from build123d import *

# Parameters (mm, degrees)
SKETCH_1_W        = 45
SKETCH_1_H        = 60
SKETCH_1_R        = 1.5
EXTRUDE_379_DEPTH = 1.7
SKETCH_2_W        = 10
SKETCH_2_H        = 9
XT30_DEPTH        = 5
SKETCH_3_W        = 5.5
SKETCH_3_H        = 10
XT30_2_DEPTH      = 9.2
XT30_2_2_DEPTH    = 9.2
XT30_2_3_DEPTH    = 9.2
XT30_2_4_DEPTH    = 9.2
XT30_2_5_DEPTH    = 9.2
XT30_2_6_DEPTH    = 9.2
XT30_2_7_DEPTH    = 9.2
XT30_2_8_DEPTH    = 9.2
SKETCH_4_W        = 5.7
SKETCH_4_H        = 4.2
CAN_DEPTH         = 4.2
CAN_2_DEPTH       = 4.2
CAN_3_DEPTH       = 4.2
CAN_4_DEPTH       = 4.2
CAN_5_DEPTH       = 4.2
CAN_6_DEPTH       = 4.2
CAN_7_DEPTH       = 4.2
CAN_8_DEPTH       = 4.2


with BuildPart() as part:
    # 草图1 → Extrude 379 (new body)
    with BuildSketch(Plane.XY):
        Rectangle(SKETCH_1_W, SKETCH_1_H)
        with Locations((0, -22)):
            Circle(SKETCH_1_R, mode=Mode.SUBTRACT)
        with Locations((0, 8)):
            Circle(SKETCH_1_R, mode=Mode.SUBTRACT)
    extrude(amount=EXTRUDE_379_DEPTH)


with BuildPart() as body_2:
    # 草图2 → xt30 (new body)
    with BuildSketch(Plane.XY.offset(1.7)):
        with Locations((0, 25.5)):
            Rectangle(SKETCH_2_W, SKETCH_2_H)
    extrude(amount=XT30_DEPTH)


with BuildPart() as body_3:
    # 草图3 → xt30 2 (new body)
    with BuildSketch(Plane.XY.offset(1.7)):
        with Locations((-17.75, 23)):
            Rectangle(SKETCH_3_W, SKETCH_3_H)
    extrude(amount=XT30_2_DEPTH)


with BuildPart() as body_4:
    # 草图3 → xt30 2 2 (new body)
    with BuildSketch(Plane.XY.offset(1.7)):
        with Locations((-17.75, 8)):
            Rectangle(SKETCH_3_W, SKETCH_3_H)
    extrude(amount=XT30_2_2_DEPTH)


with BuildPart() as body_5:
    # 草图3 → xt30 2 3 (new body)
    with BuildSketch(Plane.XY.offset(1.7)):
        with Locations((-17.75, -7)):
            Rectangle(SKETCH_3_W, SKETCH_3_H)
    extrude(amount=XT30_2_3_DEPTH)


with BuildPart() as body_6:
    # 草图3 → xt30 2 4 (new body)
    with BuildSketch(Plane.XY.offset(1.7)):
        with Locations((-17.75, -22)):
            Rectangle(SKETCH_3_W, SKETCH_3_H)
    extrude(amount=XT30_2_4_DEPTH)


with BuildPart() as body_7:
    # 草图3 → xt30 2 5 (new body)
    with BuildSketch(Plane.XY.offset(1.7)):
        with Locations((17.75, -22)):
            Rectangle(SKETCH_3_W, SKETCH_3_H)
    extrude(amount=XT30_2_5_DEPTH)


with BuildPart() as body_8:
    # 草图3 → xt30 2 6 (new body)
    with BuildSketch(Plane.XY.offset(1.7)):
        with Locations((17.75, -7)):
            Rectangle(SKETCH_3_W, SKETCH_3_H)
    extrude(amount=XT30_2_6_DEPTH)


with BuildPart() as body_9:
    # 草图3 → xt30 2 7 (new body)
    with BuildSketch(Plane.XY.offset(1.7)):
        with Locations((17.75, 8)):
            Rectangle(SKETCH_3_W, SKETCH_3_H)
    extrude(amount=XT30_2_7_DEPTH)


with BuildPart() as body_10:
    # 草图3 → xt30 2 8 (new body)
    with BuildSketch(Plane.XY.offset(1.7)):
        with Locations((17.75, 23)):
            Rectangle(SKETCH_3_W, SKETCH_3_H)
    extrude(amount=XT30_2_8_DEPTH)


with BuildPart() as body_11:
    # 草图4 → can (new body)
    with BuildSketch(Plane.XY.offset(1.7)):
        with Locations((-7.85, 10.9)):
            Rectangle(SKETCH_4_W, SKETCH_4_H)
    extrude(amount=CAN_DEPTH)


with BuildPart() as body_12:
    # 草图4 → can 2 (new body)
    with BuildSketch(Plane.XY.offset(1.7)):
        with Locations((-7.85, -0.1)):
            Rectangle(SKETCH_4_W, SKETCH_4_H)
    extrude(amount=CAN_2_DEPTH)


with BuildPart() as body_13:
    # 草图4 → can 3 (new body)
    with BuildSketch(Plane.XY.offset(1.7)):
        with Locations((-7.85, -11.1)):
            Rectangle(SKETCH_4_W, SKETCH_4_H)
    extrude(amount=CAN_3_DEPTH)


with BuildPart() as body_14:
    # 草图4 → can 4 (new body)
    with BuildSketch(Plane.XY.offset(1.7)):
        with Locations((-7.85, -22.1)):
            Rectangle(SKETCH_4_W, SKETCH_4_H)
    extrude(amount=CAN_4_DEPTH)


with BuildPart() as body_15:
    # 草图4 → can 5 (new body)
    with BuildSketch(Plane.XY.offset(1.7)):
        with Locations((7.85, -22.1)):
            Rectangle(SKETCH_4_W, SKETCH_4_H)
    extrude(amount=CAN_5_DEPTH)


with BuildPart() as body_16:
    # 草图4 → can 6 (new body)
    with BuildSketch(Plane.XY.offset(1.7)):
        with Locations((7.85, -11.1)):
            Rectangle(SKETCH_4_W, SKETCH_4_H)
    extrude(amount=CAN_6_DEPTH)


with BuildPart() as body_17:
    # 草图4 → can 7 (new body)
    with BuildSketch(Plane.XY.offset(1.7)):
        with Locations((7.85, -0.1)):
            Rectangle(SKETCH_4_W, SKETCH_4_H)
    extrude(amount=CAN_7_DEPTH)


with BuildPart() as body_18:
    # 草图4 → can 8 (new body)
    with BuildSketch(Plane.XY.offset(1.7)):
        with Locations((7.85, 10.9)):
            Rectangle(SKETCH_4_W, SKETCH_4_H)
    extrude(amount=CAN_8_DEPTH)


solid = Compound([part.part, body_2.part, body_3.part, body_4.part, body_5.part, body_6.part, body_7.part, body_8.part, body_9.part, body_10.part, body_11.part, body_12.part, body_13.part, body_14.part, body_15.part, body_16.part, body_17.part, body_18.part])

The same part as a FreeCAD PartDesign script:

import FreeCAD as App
import Part
import Sketcher

V = App.Vector
Q = App.Units.Quantity


def add_polygon(sketch, points):
    """Adds a closed chain of lines whose ends are joined by coincident constraints."""
    first, n = sketch.GeometryCount, len(points)
    for a, b in zip(points, points[1:] + points[:1]):
        sketch.addGeometry(Part.LineSegment(App.Vector(*a, 0), App.Vector(*b, 0)), False)
    for i in range(n):
        sketch.addConstraint(Sketcher.Constraint("Coincident", first + i, 2, first + (i + 1) % n, 1))

doc = App.newDocument("Part")
body = doc.addObject("PartDesign::Body", "Body")

sketch1 = doc.addObject("Sketcher::SketchObject", "Sketch")
body.addObject(sketch1)
sketch1.AttachmentSupport = (doc.XY_Plane, [""])
sketch1.MapMode = "FlatFace"
add_polygon(sketch1, [(-22.5, 30), (-22.5, -30), (22.5, -30), (22.5, 30)])
sketch1.addGeometry(Part.Circle(V(0, -22, 0), V(0, 0, 1), 1.5), False)
sketch1.addGeometry(Part.Circle(V(0, 8, 0), V(0, 0, 1), 1.5), False)
sketch1.addConstraint([
    Sketcher.Constraint("Vertical", 0),
    Sketcher.Constraint("Horizontal", 1),
    Sketcher.Constraint("Vertical", 2),
    Sketcher.Constraint("Horizontal", 3),
    Sketcher.Constraint("Equal", 4, 5),
    Sketcher.Constraint("Symmetric", 0, 2, 2, 2, -1, 1),
    Sketcher.Constraint("PointOnObject", 4, 3, -2),
    Sketcher.Constraint("PointOnObject", 5, 3, -2),
    Sketcher.Constraint("Diameter", 4, Q("3 mm")),
    Sketcher.Constraint("DistanceX", 1, 1, 1, 2, Q("45 mm")),
    Sketcher.Constraint("DistanceY", 0, 2, 0, 1, Q("60 mm")),
    Sketcher.Constraint("DistanceY", 4, 3, -1, 1, Q("22 mm")),
    Sketcher.Constraint("DistanceY", -1, 1, 5, 3, Q("8 mm")),
])
pad1 = doc.addObject("PartDesign::Pad", "Pad")
body.addObject(pad1)
pad1.Profile = sketch1
pad1.Length = 1.7
body2 = doc.addObject("PartDesign::Body", "Body001")

sketch2 = doc.addObject("Sketcher::SketchObject", "Sketch001")
body2.addObject(sketch2)
sketch2.AttachmentSupport = (doc.getObject("XY_Plane001"), [""])
sketch2.MapMode = "FlatFace"
sketch2.AttachmentOffset = App.Placement(V(0, 0, 1.7), App.Rotation())
add_polygon(sketch2, [(-5, 30), (-5, 21), (5, 21), (5, 30)])
sketch2.addConstraint([
    Sketcher.Constraint("Vertical", 0),
    Sketcher.Constraint("Horizontal", 1),
    Sketcher.Constraint("Vertical", 2),
    Sketcher.Constraint("Horizontal", 3),
    Sketcher.Constraint("DistanceX", 1, 1, 1, 2, Q("10 mm")),
    Sketcher.Constraint("DistanceY", 0, 2, 0, 1, Q("9 mm")),
    Sketcher.Constraint("DistanceX", 0, 2, -1, 1, Q("5 mm")),
    Sketcher.Constraint("DistanceY", -1, 1, 0, 2, Q("21 mm")),
])
pad2 = doc.addObject("PartDesign::Pad", "Pad001")
body2.addObject(pad2)
pad2.Profile = sketch2
pad2.Length = 5
body3 = doc.addObject("PartDesign::Body", "Body002")

sketch3 = doc.addObject("Sketcher::SketchObject", "Sketch002")
body3.addObject(sketch3)
sketch3.AttachmentSupport = (doc.getObject("XY_Plane002"), [""])
sketch3.MapMode = "FlatFace"
sketch3.AttachmentOffset = App.Placement(V(0, 0, 1.7), App.Rotation())
add_polygon(sketch3, [(-20.5, 28), (-20.5, 18), (-15, 18), (-15, 28)])
sketch3.addConstraint([
    Sketcher.Constraint("Vertical", 0),
    Sketcher.Constraint("Horizontal", 1),
    Sketcher.Constraint("Vertical", 2),
    Sketcher.Constraint("Horizontal", 3),
    Sketcher.Constraint("DistanceY", 0, 2, 0, 1, Q("10 mm")),
    Sketcher.Constraint("DistanceX", 1, 1, 1, 2, Q("5.5 mm")),
    Sketcher.Constraint("DistanceY", -1, 1, 0, 2, Q("18 mm")),
    Sketcher.Constraint("DistanceX", 1, 2, -1, 1, Q("15 mm")),
])
pad3 = doc.addObject("PartDesign::Pad", "Pad002")
body3.addObject(pad3)
pad3.Profile = sketch3
pad3.Length = 9.2
body4 = doc.addObject("PartDesign::Body", "Body003")

sketch4 = doc.addObject("Sketcher::SketchObject", "Sketch003")
body4.addObject(sketch4)
sketch4.AttachmentSupport = (doc.getObject("XY_Plane003"), [""])
sketch4.MapMode = "FlatFace"
sketch4.AttachmentOffset = App.Placement(V(0, 0, 1.7), App.Rotation())
add_polygon(sketch4, [(-20.5, 13), (-20.5, 3), (-15, 3), (-15, 13)])
sketch4.addConstraint([
    Sketcher.Constraint("Vertical", 0),
    Sketcher.Constraint("Horizontal", 1),
    Sketcher.Constraint("Vertical", 2),
    Sketcher.Constraint("Horizontal", 3),
    Sketcher.Constraint("DistanceY", 0, 2, 0, 1, Q("10 mm")),
    Sketcher.Constraint("DistanceX", 1, 1, 1, 2, Q("5.5 mm")),
    Sketcher.Constraint("DistanceY", -1, 1, 0, 2, Q("3 mm")),
    Sketcher.Constraint("DistanceX", 1, 2, -1, 1, Q("15 mm")),
])
pad4 = doc.addObject("PartDesign::Pad", "Pad003")
body4.addObject(pad4)
pad4.Profile = sketch4
pad4.Length = 9.2
body5 = doc.addObject("PartDesign::Body", "Body004")

sketch5 = doc.addObject("Sketcher::SketchObject", "Sketch004")
body5.addObject(sketch5)
sketch5.AttachmentSupport = (doc.getObject("XY_Plane004"), [""])
sketch5.MapMode = "FlatFace"
sketch5.AttachmentOffset = App.Placement(V(0, 0, 1.7), App.Rotation())
add_polygon(sketch5, [(-20.5, -2), (-20.5, -12), (-15, -12), (-15, -2)])
sketch5.addConstraint([
    Sketcher.Constraint("Vertical", 0),
    Sketcher.Constraint("Horizontal", 1),
    Sketcher.Constraint("Vertical", 2),
    Sketcher.Constraint("Horizontal", 3),
    Sketcher.Constraint("DistanceY", 0, 2, 0, 1, Q("10 mm")),
    Sketcher.Constraint("DistanceX", 1, 1, 1, 2, Q("5.5 mm")),
    Sketcher.Constraint("DistanceY", 0, 2, -1, 1, Q("12 mm")),
    Sketcher.Constraint("DistanceX", 1, 2, -1, 1, Q("15 mm")),
])
pad5 = doc.addObject("PartDesign::Pad", "Pad004")
body5.addObject(pad5)
pad5.Profile = sketch5
pad5.Length = 9.2
body6 = doc.addObject("PartDesign::Body", "Body005")

sketch6 = doc.addObject("Sketcher::SketchObject", "Sketch005")
body6.addObject(sketch6)
sketch6.AttachmentSupport = (doc.getObject("XY_Plane005"), [""])
sketch6.MapMode = "FlatFace"
sketch6.AttachmentOffset = App.Placement(V(0, 0, 1.7), App.Rotation())
add_polygon(sketch6, [(-20.5, -17), (-20.5, -27), (-15, -27), (-15, -17)])
sketch6.addConstraint([
    Sketcher.Constraint("Vertical", 0),
    Sketcher.Constraint("Horizontal", 1),
    Sketcher.Constraint("Vertical", 2),
    Sketcher.Constraint("Horizontal", 3),
    Sketcher.Constraint("DistanceY", 0, 2, 0, 1, Q("10 mm")),
    Sketcher.Constraint("DistanceX", 1, 1, 1, 2, Q("5.5 mm")),
    Sketcher.Constraint("DistanceY", 0, 2, -1, 1, Q("27 mm")),
    Sketcher.Constraint("DistanceX", 1, 2, -1, 1, Q("15 mm")),
])
pad6 = doc.addObject("PartDesign::Pad", "Pad005")
body6.addObject(pad6)
pad6.Profile = sketch6
pad6.Length = 9.2
body7 = doc.addObject("PartDesign::Body", "Body006")

sketch7 = doc.addObject("Sketcher::SketchObject", "Sketch006")
body7.addObject(sketch7)
sketch7.AttachmentSupport = (doc.getObject("XY_Plane006"), [""])
sketch7.MapMode = "FlatFace"
sketch7.AttachmentOffset = App.Placement(V(0, 0, 1.7), App.Rotation())
add_polygon(sketch7, [(15, -17), (15, -27), (20.5, -27), (20.5, -17)])
sketch7.addConstraint([
    Sketcher.Constraint("Vertical", 0),
    Sketcher.Constraint("Horizontal", 1),
    Sketcher.Constraint("Vertical", 2),
    Sketcher.Constraint("Horizontal", 3),
    Sketcher.Constraint("DistanceY", 0, 2, 0, 1, Q("10 mm")),
    Sketcher.Constraint("DistanceX", 1, 1, 1, 2, Q("5.5 mm")),
    Sketcher.Constraint("DistanceX", -1, 1, 0, 2, Q("15 mm")),
    Sketcher.Constraint("DistanceY", 0, 2, -1, 1, Q("27 mm")),
])
pad7 = doc.addObject("PartDesign::Pad", "Pad006")
body7.addObject(pad7)
pad7.Profile = sketch7
pad7.Length = 9.2
body8 = doc.addObject("PartDesign::Body", "Body007")

sketch8 = doc.addObject("Sketcher::SketchObject", "Sketch007")
body8.addObject(sketch8)
sketch8.AttachmentSupport = (doc.getObject("XY_Plane007"), [""])
sketch8.MapMode = "FlatFace"
sketch8.AttachmentOffset = App.Placement(V(0, 0, 1.7), App.Rotation())
add_polygon(sketch8, [(15, -2), (15, -12), (20.5, -12), (20.5, -2)])
sketch8.addConstraint([
    Sketcher.Constraint("Vertical", 0),
    Sketcher.Constraint("Horizontal", 1),
    Sketcher.Constraint("Vertical", 2),
    Sketcher.Constraint("Horizontal", 3),
    Sketcher.Constraint("DistanceY", 0, 2, 0, 1, Q("10 mm")),
    Sketcher.Constraint("DistanceX", 1, 1, 1, 2, Q("5.5 mm")),
    Sketcher.Constraint("DistanceX", -1, 1, 0, 2, Q("15 mm")),
    Sketcher.Constraint("DistanceY", 0, 2, -1, 1, Q("12 mm")),
])
pad8 = doc.addObject("PartDesign::Pad", "Pad007")
body8.addObject(pad8)
pad8.Profile = sketch8
pad8.Length = 9.2
body9 = doc.addObject("PartDesign::Body", "Body008")

sketch9 = doc.addObject("Sketcher::SketchObject", "Sketch008")
body9.addObject(sketch9)
sketch9.AttachmentSupport = (doc.getObject("XY_Plane008"), [""])
sketch9.MapMode = "FlatFace"
sketch9.AttachmentOffset = App.Placement(V(0, 0, 1.7), App.Rotation())
add_polygon(sketch9, [(15, 13), (15, 3), (20.5, 3), (20.5, 13)])
sketch9.addConstraint([
    Sketcher.Constraint("Vertical", 0),
    Sketcher.Constraint("Horizontal", 1),
    Sketcher.Constraint("Vertical", 2),
    Sketcher.Constraint("Horizontal", 3),
    Sketcher.Constraint("DistanceY", 0, 2, 0, 1, Q("10 mm")),
    Sketcher.Constraint("DistanceX", 1, 1, 1, 2, Q("5.5 mm")),
    Sketcher.Constraint("DistanceX", -1, 1, 0, 2, Q("15 mm")),
    Sketcher.Constraint("DistanceY", -1, 1, 0, 2, Q("3 mm")),
])
pad9 = doc.addObject("PartDesign::Pad", "Pad008")
body9.addObject(pad9)
pad9.Profile = sketch9
pad9.Length = 9.2
body10 = doc.addObject("PartDesign::Body", "Body009")

sketch10 = doc.addObject("Sketcher::SketchObject", "Sketch009")
body10.addObject(sketch10)
sketch10.AttachmentSupport = (doc.getObject("XY_Plane009"), [""])
sketch10.MapMode = "FlatFace"
sketch10.AttachmentOffset = App.Placement(V(0, 0, 1.7), App.Rotation())
add_polygon(sketch10, [(15, 28), (15, 18), (20.5, 18), (20.5, 28)])
sketch10.addConstraint([
    Sketcher.Constraint("Vertical", 0),
    Sketcher.Constraint("Horizontal", 1),
    Sketcher.Constraint("Vertical", 2),
    Sketcher.Constraint("Horizontal", 3),
    Sketcher.Constraint("DistanceY", 0, 2, 0, 1, Q("10 mm")),
    Sketcher.Constraint("DistanceX", 1, 1, 1, 2, Q("5.5 mm")),
    Sketcher.Constraint("DistanceX", -1, 1, 0, 2, Q("15 mm")),
    Sketcher.Constraint("DistanceY", -1, 1, 0, 2, Q("18 mm")),
])
pad10 = doc.addObject("PartDesign::Pad", "Pad009")
body10.addObject(pad10)
pad10.Profile = sketch10
pad10.Length = 9.2
body11 = doc.addObject("PartDesign::Body", "Body010")

sketch11 = doc.addObject("Sketcher::SketchObject", "Sketch010")
body11.addObject(sketch11)
sketch11.AttachmentSupport = (doc.getObject("XY_Plane010"), [""])
sketch11.MapMode = "FlatFace"
sketch11.AttachmentOffset = App.Placement(V(0, 0, 1.7), App.Rotation())
add_polygon(sketch11, [(-10.7, 13), (-10.7, 8.8), (-5, 8.8), (-5, 13)])
sketch11.addConstraint([
    Sketcher.Constraint("Vertical", 0),
    Sketcher.Constraint("Horizontal", 1),
    Sketcher.Constraint("Vertical", 2),
    Sketcher.Constraint("Horizontal", 3),
    Sketcher.Constraint("DistanceX", 1, 1, 1, 2, Q("5.7 mm")),
    Sketcher.Constraint("DistanceY", 0, 2, 0, 1, Q("4.2 mm")),
    Sketcher.Constraint("DistanceX", 1, 2, -1, 1, Q("5 mm")),
    Sketcher.Constraint("DistanceY", -1, 1, 2, 2, Q("13 mm")),
])
pad11 = doc.addObject("PartDesign::Pad", "Pad010")
body11.addObject(pad11)
pad11.Profile = sketch11
pad11.Length = 4.2
body12 = doc.addObject("PartDesign::Body", "Body011")

sketch12 = doc.addObject("Sketcher::SketchObject", "Sketch011")
body12.addObject(sketch12)
sketch12.AttachmentSupport = (doc.getObject("XY_Plane011"), [""])
sketch12.MapMode = "FlatFace"
sketch12.AttachmentOffset = App.Placement(V(0, 0, 1.7), App.Rotation())
add_polygon(sketch12, [(-10.7, 2), (-10.7, -2.2), (-5, -2.2), (-5, 2)])
sketch12.addConstraint([
    Sketcher.Constraint("Vertical", 0),
    Sketcher.Constraint("Horizontal", 1),
    Sketcher.Constraint("Vertical", 2),
    Sketcher.Constraint("Horizontal", 3),
    Sketcher.Constraint("DistanceX", 1, 1, 1, 2, Q("5.7 mm")),
    Sketcher.Constraint("DistanceY", 0, 2, 0, 1, Q("4.2 mm")),
    Sketcher.Constraint("DistanceX", 1, 2, -1, 1, Q("5 mm")),
    Sketcher.Constraint("DistanceY", -1, 1, 2, 2, Q("2 mm")),
])
pad12 = doc.addObject("PartDesign::Pad", "Pad011")
body12.addObject(pad12)
pad12.Profile = sketch12
pad12.Length = 4.2
body13 = doc.addObject("PartDesign::Body", "Body012")

sketch13 = doc.addObject("Sketcher::SketchObject", "Sketch012")
body13.addObject(sketch13)
sketch13.AttachmentSupport = (doc.getObject("XY_Plane012"), [""])
sketch13.MapMode = "FlatFace"
sketch13.AttachmentOffset = App.Placement(V(0, 0, 1.7), App.Rotation())
add_polygon(sketch13, [(-10.7, -9), (-10.7, -13.2), (-5, -13.2), (-5, -9)])
sketch13.addConstraint([
    Sketcher.Constraint("Vertical", 0),
    Sketcher.Constraint("Horizontal", 1),
    Sketcher.Constraint("Vertical", 2),
    Sketcher.Constraint("Horizontal", 3),
    Sketcher.Constraint("DistanceX", 1, 1, 1, 2, Q("5.7 mm")),
    Sketcher.Constraint("DistanceY", 0, 2, 0, 1, Q("4.2 mm")),
    Sketcher.Constraint("DistanceX", 1, 2, -1, 1, Q("5 mm")),
    Sketcher.Constraint("DistanceY", 2, 2, -1, 1, Q("9 mm")),
])
pad13 = doc.addObject("PartDesign::Pad", "Pad012")
body13.addObject(pad13)
pad13.Profile = sketch13
pad13.Length = 4.2
body14 = doc.addObject("PartDesign::Body", "Body013")

sketch14 = doc.addObject("Sketcher::SketchObject", "Sketch013")
body14.addObject(sketch14)
sketch14.AttachmentSupport = (doc.getObject("XY_Plane013"), [""])
sketch14.MapMode = "FlatFace"
sketch14.AttachmentOffset = App.Placement(V(0, 0, 1.7), App.Rotation())
add_polygon(sketch14, [(-10.7, -20), (-10.7, -24.2), (-5, -24.2), (-5, -20)])
sketch14.addConstraint([
    Sketcher.Constraint("Vertical", 0),
    Sketcher.Constraint("Horizontal", 1),
    Sketcher.Constraint("Vertical", 2),
    Sketcher.Constraint("Horizontal", 3),
    Sketcher.Constraint("DistanceX", 1, 1, 1, 2, Q("5.7 mm")),
    Sketcher.Constraint("DistanceY", 0, 2, 0, 1, Q("4.2 mm")),
    Sketcher.Constraint("DistanceX", 1, 2, -1, 1, Q("5 mm")),
    Sketcher.Constraint("DistanceY", 2, 2, -1, 1, Q("20 mm")),
])
pad14 = doc.addObject("PartDesign::Pad", "Pad013")
body14.addObject(pad14)
pad14.Profile = sketch14
pad14.Length = 4.2
body15 = doc.addObject("PartDesign::Body", "Body014")

sketch15 = doc.addObject("Sketcher::SketchObject", "Sketch014")
body15.addObject(sketch15)
sketch15.AttachmentSupport = (doc.getObject("XY_Plane014"), [""])
sketch15.MapMode = "FlatFace"
sketch15.AttachmentOffset = App.Placement(V(0, 0, 1.7), App.Rotation())
add_polygon(sketch15, [(5, -20), (5, -24.2), (10.7, -24.2), (10.7, -20)])
sketch15.addConstraint([
    Sketcher.Constraint("Vertical", 0),
    Sketcher.Constraint("Horizontal", 1),
    Sketcher.Constraint("Vertical", 2),
    Sketcher.Constraint("Horizontal", 3),
    Sketcher.Constraint("DistanceX", 1, 1, 1, 2, Q("5.7 mm")),
    Sketcher.Constraint("DistanceY", 0, 2, 0, 1, Q("4.2 mm")),
    Sketcher.Constraint("DistanceX", -1, 1, 0, 2, Q("5 mm")),
    Sketcher.Constraint("DistanceY", 2, 2, -1, 1, Q("20 mm")),
])
pad15 = doc.addObject("PartDesign::Pad", "Pad014")
body15.addObject(pad15)
pad15.Profile = sketch15
pad15.Length = 4.2
body16 = doc.addObject("PartDesign::Body", "Body015")

sketch16 = doc.addObject("Sketcher::SketchObject", "Sketch015")
body16.addObject(sketch16)
sketch16.AttachmentSupport = (doc.getObject("XY_Plane015"), [""])
sketch16.MapMode = "FlatFace"
sketch16.AttachmentOffset = App.Placement(V(0, 0, 1.7), App.Rotation())
add_polygon(sketch16, [(5, -9), (5, -13.2), (10.7, -13.2), (10.7, -9)])
sketch16.addConstraint([
    Sketcher.Constraint("Vertical", 0),
    Sketcher.Constraint("Horizontal", 1),
    Sketcher.Constraint("Vertical", 2),
    Sketcher.Constraint("Horizontal", 3),
    Sketcher.Constraint("DistanceX", 1, 1, 1, 2, Q("5.7 mm")),
    Sketcher.Constraint("DistanceY", 0, 2, 0, 1, Q("4.2 mm")),
    Sketcher.Constraint("DistanceX", -1, 1, 0, 2, Q("5 mm")),
    Sketcher.Constraint("DistanceY", 2, 2, -1, 1, Q("9 mm")),
])
pad16 = doc.addObject("PartDesign::Pad", "Pad015")
body16.addObject(pad16)
pad16.Profile = sketch16
pad16.Length = 4.2
body17 = doc.addObject("PartDesign::Body", "Body016")

sketch17 = doc.addObject("Sketcher::SketchObject", "Sketch016")
body17.addObject(sketch17)
sketch17.AttachmentSupport = (doc.getObject("XY_Plane016"), [""])
sketch17.MapMode = "FlatFace"
sketch17.AttachmentOffset = App.Placement(V(0, 0, 1.7), App.Rotation())
add_polygon(sketch17, [(5, 2), (5, -2.2), (10.7, -2.2), (10.7, 2)])
sketch17.addConstraint([
    Sketcher.Constraint("Vertical", 0),
    Sketcher.Constraint("Horizontal", 1),
    Sketcher.Constraint("Vertical", 2),
    Sketcher.Constraint("Horizontal", 3),
    Sketcher.Constraint("DistanceX", 1, 1, 1, 2, Q("5.7 mm")),
    Sketcher.Constraint("DistanceY", 0, 2, 0, 1, Q("4.2 mm")),
    Sketcher.Constraint("DistanceX", -1, 1, 0, 2, Q("5 mm")),
    Sketcher.Constraint("DistanceY", -1, 1, 2, 2, Q("2 mm")),
])
pad17 = doc.addObject("PartDesign::Pad", "Pad016")
body17.addObject(pad17)
pad17.Profile = sketch17
pad17.Length = 4.2
body18 = doc.addObject("PartDesign::Body", "Body017")

sketch18 = doc.addObject("Sketcher::SketchObject", "Sketch017")
body18.addObject(sketch18)
sketch18.AttachmentSupport = (doc.getObject("XY_Plane017"), [""])
sketch18.MapMode = "FlatFace"
sketch18.AttachmentOffset = App.Placement(V(0, 0, 1.7), App.Rotation())
add_polygon(sketch18, [(5, 13), (5, 8.8), (10.7, 8.8), (10.7, 13)])
sketch18.addConstraint([
    Sketcher.Constraint("Vertical", 0),
    Sketcher.Constraint("Horizontal", 1),
    Sketcher.Constraint("Vertical", 2),
    Sketcher.Constraint("Horizontal", 3),
    Sketcher.Constraint("DistanceX", 1, 1, 1, 2, Q("5.7 mm")),
    Sketcher.Constraint("DistanceY", 0, 2, 0, 1, Q("4.2 mm")),
    Sketcher.Constraint("DistanceX", -1, 1, 0, 2, Q("5 mm")),
    Sketcher.Constraint("DistanceY", -1, 1, 2, 2, Q("13 mm")),
])
pad18 = doc.addObject("PartDesign::Pad", "Pad017")
body18.addObject(pad18)
pad18.Profile = sketch18
pad18.Length = 4.2

doc.recompute()
